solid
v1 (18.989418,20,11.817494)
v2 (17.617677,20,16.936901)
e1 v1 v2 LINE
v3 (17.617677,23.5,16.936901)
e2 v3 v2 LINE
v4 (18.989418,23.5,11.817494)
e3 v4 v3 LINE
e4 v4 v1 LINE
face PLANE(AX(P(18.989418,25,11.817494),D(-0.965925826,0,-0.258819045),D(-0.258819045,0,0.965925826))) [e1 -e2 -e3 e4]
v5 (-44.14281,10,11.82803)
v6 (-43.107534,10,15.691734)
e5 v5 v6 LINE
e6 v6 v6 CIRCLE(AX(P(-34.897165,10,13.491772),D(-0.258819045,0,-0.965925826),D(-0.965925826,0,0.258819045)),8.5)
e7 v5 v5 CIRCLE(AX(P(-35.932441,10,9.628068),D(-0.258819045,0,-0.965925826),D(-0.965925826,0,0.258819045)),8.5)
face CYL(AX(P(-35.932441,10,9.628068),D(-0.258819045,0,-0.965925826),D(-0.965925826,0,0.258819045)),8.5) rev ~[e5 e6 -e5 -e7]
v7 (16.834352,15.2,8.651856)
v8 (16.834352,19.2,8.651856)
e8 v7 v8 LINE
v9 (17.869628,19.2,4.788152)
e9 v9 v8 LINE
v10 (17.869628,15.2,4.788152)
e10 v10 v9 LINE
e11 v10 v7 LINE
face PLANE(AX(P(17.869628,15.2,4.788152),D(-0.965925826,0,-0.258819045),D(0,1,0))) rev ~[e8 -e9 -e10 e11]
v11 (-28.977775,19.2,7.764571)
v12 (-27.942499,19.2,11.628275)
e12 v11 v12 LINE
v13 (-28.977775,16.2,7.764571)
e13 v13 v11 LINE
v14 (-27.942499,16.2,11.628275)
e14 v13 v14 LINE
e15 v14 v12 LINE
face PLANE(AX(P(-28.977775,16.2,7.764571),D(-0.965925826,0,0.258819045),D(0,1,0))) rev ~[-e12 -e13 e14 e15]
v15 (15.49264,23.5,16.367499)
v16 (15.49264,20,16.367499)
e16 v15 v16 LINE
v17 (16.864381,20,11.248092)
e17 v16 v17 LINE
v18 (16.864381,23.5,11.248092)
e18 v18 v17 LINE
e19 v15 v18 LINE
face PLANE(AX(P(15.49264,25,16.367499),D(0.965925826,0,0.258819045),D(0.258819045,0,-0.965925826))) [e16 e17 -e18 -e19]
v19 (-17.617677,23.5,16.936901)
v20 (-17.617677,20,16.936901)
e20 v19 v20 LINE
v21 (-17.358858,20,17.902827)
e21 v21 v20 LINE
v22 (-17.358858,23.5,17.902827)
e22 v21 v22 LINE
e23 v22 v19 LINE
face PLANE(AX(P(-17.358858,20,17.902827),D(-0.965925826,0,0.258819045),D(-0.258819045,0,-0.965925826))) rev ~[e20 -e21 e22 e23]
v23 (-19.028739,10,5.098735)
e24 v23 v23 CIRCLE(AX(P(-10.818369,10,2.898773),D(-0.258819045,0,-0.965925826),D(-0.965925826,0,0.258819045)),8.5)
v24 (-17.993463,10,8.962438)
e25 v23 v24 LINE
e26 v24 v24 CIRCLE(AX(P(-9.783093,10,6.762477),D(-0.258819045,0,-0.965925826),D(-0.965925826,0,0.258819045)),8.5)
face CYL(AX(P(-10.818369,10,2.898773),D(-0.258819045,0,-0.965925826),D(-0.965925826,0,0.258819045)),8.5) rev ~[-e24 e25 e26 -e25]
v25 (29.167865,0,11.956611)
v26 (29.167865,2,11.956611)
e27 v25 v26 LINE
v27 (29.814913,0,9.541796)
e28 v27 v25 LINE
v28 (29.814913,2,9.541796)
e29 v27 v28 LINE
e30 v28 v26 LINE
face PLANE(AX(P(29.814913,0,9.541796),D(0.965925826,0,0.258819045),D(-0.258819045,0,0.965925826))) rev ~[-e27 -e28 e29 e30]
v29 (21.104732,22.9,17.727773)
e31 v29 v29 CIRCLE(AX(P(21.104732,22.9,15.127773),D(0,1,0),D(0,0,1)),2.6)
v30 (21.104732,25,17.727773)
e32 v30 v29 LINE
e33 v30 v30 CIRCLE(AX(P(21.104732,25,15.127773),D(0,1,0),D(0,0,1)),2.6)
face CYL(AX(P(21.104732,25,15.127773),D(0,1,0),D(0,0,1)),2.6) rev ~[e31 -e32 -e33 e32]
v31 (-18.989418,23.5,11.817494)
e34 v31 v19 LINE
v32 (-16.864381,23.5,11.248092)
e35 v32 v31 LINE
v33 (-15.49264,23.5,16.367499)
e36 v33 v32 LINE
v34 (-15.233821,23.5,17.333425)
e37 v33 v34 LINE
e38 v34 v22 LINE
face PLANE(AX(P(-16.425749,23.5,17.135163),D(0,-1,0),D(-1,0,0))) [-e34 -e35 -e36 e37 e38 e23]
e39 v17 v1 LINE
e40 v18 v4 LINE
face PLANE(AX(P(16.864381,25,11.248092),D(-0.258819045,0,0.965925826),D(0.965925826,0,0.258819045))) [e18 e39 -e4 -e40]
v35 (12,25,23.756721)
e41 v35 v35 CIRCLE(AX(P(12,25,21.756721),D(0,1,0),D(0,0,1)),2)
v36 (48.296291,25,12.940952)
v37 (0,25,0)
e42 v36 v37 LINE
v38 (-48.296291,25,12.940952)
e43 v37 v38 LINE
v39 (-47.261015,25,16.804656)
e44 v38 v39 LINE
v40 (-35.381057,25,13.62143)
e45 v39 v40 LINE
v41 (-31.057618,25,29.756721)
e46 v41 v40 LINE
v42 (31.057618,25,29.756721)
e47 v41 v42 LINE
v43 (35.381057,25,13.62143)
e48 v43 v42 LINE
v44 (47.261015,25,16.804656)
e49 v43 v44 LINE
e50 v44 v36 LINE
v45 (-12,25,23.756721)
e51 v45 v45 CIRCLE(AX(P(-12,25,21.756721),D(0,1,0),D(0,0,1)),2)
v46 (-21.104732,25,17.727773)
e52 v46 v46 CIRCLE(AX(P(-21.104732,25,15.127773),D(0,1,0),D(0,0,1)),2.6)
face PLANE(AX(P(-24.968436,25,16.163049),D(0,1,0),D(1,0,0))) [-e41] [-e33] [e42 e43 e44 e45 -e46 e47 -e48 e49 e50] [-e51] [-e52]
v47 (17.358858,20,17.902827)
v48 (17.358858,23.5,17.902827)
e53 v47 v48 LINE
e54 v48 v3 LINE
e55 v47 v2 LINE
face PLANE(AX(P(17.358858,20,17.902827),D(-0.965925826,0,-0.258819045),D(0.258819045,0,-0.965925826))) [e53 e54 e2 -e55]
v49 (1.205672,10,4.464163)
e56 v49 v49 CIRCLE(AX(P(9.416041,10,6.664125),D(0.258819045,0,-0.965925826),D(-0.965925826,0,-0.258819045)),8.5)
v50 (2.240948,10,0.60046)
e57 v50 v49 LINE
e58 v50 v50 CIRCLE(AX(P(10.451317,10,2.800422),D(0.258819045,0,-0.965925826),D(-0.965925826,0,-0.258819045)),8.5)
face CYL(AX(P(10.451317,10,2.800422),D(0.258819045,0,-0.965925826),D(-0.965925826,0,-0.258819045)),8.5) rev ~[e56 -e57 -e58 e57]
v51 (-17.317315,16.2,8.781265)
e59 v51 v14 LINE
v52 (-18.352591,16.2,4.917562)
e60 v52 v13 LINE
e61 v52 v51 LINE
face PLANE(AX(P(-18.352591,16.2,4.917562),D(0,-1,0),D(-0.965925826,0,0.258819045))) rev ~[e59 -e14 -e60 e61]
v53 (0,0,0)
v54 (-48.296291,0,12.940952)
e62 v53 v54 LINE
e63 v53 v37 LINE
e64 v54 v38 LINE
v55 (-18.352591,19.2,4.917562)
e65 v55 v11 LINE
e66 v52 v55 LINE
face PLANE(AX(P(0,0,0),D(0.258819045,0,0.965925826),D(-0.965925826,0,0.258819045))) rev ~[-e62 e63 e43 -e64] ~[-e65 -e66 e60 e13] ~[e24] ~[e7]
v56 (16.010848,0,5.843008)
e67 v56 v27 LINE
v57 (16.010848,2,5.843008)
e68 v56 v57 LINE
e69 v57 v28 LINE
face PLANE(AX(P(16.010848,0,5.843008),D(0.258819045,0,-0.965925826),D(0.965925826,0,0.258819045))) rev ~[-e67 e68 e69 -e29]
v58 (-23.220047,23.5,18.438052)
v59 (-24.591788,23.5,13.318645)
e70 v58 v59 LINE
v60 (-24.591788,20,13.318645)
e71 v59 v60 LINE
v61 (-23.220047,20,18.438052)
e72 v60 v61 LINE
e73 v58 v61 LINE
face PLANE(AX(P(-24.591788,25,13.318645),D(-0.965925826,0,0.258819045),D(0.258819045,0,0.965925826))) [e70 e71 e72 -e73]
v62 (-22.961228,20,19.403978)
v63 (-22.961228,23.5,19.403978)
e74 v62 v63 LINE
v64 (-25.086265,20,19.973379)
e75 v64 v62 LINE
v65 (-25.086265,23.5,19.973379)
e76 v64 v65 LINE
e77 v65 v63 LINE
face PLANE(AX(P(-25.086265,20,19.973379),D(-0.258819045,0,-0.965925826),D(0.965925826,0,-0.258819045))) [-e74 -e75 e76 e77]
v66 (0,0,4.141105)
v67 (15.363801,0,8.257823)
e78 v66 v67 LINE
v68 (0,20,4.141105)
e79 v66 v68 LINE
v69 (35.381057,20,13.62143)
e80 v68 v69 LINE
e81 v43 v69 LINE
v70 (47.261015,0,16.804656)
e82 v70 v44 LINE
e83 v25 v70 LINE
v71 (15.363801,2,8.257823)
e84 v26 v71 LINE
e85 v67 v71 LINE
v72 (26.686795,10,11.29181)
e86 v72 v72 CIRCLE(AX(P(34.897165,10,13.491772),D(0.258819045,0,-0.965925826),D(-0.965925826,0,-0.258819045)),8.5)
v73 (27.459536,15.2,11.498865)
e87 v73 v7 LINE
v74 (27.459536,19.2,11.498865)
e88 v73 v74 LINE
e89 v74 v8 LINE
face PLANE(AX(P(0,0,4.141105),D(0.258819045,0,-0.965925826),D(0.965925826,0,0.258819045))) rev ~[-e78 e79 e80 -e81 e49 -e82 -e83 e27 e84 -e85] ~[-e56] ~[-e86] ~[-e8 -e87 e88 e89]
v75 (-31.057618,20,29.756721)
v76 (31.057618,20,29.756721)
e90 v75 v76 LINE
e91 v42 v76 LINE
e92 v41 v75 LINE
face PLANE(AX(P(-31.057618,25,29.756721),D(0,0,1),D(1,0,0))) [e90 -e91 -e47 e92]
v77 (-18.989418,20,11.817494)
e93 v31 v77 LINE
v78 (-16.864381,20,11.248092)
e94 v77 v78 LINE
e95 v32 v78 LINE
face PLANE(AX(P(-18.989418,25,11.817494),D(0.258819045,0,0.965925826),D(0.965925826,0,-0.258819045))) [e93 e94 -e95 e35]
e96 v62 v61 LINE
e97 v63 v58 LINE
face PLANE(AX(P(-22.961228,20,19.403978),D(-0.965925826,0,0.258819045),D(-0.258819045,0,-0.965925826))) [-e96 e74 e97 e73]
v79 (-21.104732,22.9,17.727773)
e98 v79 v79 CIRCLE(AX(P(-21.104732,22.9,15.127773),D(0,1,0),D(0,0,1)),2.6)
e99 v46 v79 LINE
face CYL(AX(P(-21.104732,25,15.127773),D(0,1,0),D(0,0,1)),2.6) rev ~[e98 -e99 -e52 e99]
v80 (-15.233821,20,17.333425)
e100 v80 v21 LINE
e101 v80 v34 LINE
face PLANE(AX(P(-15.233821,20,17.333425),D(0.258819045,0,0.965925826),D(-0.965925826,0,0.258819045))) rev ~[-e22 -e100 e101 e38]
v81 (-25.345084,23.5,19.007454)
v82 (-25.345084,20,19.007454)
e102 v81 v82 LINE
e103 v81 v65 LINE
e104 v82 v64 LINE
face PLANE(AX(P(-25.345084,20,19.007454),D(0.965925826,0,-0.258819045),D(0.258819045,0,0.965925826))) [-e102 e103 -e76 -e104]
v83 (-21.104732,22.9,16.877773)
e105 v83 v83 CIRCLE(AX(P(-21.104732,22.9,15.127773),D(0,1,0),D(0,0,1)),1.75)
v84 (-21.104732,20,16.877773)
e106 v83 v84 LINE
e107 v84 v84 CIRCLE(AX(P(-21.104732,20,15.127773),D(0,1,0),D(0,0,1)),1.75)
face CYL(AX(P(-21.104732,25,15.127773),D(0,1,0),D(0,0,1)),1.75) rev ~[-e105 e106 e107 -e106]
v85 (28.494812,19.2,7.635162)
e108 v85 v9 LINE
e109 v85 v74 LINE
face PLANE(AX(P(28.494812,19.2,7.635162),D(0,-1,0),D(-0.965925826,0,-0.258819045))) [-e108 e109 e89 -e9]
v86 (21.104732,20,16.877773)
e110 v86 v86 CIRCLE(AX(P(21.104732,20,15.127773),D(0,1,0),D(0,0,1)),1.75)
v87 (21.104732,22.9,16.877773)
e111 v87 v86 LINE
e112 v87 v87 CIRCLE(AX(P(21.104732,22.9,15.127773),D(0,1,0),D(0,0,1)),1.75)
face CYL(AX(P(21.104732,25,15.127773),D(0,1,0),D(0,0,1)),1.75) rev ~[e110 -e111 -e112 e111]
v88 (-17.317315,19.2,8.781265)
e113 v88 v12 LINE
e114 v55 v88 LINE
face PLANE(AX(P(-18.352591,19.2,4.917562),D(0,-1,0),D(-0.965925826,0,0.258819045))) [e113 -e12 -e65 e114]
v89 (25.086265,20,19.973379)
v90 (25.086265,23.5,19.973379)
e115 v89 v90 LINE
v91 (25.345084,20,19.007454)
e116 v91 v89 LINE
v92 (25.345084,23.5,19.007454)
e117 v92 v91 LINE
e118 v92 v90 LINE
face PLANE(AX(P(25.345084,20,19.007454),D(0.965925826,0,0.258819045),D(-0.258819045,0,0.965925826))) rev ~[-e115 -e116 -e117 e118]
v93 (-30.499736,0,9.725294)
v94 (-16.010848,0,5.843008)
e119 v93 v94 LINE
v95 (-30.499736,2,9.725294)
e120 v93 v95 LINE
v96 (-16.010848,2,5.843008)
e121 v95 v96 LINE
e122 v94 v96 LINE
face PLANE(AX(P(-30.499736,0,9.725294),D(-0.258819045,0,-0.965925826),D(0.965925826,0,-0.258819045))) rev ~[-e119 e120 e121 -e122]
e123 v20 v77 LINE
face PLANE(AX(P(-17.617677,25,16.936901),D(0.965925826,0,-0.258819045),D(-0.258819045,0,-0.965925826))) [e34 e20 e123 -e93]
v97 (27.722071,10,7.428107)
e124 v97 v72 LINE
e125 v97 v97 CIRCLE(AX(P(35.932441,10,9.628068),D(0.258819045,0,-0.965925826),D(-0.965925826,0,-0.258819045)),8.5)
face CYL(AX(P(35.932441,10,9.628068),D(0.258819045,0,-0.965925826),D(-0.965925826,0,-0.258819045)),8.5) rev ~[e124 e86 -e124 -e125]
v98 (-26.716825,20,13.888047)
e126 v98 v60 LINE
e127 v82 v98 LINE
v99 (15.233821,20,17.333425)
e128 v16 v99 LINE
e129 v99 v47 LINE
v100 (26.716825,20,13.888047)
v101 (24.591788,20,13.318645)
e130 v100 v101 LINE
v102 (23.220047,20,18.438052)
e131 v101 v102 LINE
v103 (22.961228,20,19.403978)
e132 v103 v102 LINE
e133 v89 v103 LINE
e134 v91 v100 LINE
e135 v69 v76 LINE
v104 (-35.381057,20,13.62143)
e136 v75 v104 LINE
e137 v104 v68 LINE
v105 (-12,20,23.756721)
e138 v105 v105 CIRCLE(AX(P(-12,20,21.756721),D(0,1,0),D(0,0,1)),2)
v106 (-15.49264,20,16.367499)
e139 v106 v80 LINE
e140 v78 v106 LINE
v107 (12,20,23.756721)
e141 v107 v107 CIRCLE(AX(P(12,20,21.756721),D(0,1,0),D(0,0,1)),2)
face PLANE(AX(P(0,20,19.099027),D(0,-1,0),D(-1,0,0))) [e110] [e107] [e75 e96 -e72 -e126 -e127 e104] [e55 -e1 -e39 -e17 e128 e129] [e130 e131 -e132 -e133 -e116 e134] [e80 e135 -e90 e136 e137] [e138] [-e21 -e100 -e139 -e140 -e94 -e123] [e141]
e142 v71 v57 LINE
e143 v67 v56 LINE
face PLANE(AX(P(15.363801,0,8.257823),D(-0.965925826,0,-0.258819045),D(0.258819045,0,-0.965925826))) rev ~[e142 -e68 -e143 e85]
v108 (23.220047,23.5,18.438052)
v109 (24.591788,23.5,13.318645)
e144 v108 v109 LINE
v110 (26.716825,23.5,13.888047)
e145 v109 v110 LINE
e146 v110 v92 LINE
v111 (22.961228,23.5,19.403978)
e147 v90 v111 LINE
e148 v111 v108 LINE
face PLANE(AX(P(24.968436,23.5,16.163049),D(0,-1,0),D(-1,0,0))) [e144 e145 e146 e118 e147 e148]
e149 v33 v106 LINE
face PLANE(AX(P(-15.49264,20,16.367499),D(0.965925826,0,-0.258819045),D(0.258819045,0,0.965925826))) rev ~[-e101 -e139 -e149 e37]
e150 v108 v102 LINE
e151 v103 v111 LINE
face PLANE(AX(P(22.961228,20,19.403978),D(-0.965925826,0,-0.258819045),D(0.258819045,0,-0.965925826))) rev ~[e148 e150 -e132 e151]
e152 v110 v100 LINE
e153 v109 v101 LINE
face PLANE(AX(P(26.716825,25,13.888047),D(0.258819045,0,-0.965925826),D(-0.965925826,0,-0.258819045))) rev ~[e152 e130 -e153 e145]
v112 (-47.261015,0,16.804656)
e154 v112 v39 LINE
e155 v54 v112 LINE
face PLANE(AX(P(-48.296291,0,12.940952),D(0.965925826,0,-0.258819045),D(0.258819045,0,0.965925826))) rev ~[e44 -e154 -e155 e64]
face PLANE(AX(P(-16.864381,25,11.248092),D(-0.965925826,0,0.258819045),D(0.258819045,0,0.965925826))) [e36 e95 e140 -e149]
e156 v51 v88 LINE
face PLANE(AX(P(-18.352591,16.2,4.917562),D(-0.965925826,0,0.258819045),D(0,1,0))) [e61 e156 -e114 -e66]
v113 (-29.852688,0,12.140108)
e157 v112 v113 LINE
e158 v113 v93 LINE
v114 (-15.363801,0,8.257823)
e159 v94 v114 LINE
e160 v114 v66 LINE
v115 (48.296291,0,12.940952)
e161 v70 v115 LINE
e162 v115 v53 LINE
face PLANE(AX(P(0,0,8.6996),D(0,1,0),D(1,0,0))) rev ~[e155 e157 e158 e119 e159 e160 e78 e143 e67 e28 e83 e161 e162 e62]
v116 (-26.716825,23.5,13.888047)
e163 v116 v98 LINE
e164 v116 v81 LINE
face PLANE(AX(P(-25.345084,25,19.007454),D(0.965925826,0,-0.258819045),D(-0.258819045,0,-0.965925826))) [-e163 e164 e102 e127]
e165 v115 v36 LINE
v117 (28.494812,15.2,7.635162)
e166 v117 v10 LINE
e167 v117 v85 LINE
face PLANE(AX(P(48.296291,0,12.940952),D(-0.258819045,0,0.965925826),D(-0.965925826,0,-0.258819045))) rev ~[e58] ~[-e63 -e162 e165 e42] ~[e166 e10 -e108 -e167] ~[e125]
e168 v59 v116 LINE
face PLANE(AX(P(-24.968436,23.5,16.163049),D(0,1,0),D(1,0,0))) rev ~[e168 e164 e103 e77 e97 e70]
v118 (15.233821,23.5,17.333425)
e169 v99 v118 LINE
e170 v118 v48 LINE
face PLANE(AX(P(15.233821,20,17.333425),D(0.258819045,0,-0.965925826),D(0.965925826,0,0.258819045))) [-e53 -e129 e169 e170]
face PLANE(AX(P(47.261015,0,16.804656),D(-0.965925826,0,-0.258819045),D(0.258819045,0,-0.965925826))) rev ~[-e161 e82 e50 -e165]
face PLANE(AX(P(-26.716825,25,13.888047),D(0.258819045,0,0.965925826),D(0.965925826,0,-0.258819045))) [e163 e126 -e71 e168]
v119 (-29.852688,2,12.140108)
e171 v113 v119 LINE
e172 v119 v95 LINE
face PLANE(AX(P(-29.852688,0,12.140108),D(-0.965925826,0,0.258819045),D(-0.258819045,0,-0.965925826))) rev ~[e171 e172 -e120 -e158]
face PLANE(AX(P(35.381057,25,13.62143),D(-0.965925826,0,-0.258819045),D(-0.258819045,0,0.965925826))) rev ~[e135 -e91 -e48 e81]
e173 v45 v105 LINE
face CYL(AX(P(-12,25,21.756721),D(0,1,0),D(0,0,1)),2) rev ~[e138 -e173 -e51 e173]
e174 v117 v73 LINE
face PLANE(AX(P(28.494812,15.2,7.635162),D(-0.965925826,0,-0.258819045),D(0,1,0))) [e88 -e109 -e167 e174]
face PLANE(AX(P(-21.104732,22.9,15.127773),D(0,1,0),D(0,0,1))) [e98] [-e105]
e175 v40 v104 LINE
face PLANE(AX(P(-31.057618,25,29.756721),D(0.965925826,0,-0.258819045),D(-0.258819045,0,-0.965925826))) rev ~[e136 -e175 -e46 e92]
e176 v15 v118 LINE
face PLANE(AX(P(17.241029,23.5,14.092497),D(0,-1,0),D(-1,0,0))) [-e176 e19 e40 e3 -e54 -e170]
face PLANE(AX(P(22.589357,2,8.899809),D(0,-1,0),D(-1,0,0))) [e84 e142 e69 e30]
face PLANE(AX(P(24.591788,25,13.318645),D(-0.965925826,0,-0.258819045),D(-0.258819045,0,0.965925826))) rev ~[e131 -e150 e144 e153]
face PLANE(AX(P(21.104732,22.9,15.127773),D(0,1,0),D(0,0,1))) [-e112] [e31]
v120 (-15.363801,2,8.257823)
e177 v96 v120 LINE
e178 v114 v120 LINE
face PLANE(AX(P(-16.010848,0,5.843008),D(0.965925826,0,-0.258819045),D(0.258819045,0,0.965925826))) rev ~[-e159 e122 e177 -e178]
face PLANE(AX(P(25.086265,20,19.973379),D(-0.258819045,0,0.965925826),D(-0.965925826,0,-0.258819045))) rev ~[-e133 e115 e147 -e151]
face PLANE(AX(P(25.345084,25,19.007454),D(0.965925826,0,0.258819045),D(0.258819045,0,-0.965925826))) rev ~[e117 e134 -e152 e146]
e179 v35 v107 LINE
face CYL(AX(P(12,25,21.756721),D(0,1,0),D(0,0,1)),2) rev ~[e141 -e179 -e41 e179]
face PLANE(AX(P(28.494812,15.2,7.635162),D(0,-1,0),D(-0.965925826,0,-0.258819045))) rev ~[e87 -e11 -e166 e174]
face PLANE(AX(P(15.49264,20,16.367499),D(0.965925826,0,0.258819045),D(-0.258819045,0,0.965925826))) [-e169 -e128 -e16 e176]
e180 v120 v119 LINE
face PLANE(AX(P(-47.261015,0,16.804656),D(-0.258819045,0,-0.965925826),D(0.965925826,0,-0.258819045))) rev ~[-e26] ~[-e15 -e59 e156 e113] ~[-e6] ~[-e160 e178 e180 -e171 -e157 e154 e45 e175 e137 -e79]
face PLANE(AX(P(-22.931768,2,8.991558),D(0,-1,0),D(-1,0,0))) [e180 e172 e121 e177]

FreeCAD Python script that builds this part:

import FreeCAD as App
import Part
import Sketcher
Q = App.Units.Quantity

doc = App.newDocument("Part")
params = doc.addObject("Spreadsheet::Sheet", "Params")
for row, (alias, value) in enumerate([
    ("sketch1_length", "50 mm"),
    ("sketch1_length2", "4 mm"),
    ("pad1_length", "25 mm"),
    ("sketch2_diameter", "4 mm"),
    ("pad2_length", "5 mm"),
    ("sketch3_diameter", "3.5 mm"),
    ("sketch3_length", "5.3 mm"),
    ("sketch3_length2", "2.2 mm"),
    ("pocket1_length", "5 mm"),
    ("sketch4_diameter", "5.2 mm"),
    ("pocket2_length", "2.1 mm"),
    ("sketch5_length", "5.3 mm"),
    ("sketch5_length2", "2.2 mm"),
    ("pad3_length", "1.5 mm"),
    ("sketch6_diameter", "17 mm"),
    ("sketch6_width", "11 mm"),
    ("sketch6_height", "3 mm"),
    ("sketch7_diameter", "17 mm"),
    ("sketch7_width", "11 mm"),
    ("sketch7_height", "4 mm"),
    ("sketch8_length", "15 mm"),
    ("sketch8_length2", "2.5 mm"),
    ("pocket5_length", "2 mm"),
    ("sketch9_length", "1 mm"),
    ("sketch9_length2", "2.2 mm"),
    ("pocket6_length", "3.5 mm"),
], start=1):
    params.set(f"A{row}", alias)
    params.set(f"B{row}", "=" + value)
    params.setAlias(f"B{row}", alias)

body = doc.addObject("PartDesign::Body", "Body")

# Sketch on XZ plane
sketch1 = body.newObject("Sketcher::SketchObject", "Sketch")
sketch1.AttachmentSupport = (doc.getObject("XZ_Plane"), [""])
sketch1.MapMode = "FlatFace"
sketch1.addGeometry([
    Part.LineSegment(App.Vector(0, 0, 0), App.Vector(-48.3, 12.9, 0)),  # 0
    Part.LineSegment(App.Vector(-48.3, 12.9, 0), App.Vector(-47.3, 16.8, 0)),  # 1
    Part.LineSegment(App.Vector(-47.3, 16.8, 0), App.Vector(0, 4.1, 0)),  # 2
    Part.LineSegment(App.Vector(0, 4.1, 0), App.Vector(47.3, 16.8, 0)),  # 3
    Part.LineSegment(App.Vector(47.3, 16.8, 0), App.Vector(48.3, 12.9, 0)),  # 4
    Part.LineSegment(App.Vector(48.3, 12.9, 0), App.Vector(0, 0, 0)),  # 5
], False)
sketch1.addConstraint([
    Sketcher.Constraint("Coincident", 0, 2, 1, 1),
    Sketcher.Constraint("Coincident", 1, 2, 2, 1),
    Sketcher.Constraint("Coincident", 2, 2, 3, 1),
    Sketcher.Constraint("Coincident", 3, 2, 4, 1),
    Sketcher.Constraint("Coincident", 4, 2, 5, 1),
    Sketcher.Constraint("Coincident", 5, 2, 0, 1),
    Sketcher.Constraint("Coincident", 5, 2, -1, 1),
    Sketcher.Constraint("Symmetric", 1, 2, 3, 2, -2),
    Sketcher.Constraint("Symmetric", 0, 2, 4, 2, -2),
    Sketcher.Constraint("PointOnObject", 2, 2, -2),
    Sketcher.Constraint("Perpendicular", 0, 1),
    Sketcher.Constraint("Perpendicular", 1, 2),
    Sketcher.Constraint("Angle", 0, Q("165 deg")),
    Sketcher.Constraint("Distance", 0, 50.0),
    Sketcher.Constraint("Distance", 1, 4.0),
])
sketch1.setExpression("Constraints[13]", "Params.sketch1_length")
sketch1.setExpression("Constraints[14]", "Params.sketch1_length2")
pad1 = body.newObject("PartDesign::Pad", "Pad")
pad1.Profile = sketch1
pad1.setExpression("Length", "Params.pad1_length")
pad1.Reversed = True

# Sketch on XZ plane
sketch2 = body.newObject("Sketcher::SketchObject", "Sketch001")
sketch2.AttachmentSupport = (doc.getObject("XZ_Plane"), [""])
sketch2.MapMode = "FlatFace"
sketch2.AttachmentOffset = App.Placement(App.Vector(0, 0, -25), App.Rotation())
sketch2.addGeometry([
    Part.LineSegment(App.Vector(-31.1, 29.8, 0), App.Vector(31.1, 29.8, 0)),  # 0
    Part.LineSegment(App.Vector(31.1, 29.8, 0), App.Vector(35.4, 13.6, 0)),  # 1
    Part.LineSegment(App.Vector(35.4, 13.6, 0), App.Vector(0, 4.1, 0)),  # 2
    Part.LineSegment(App.Vector(0, 4.1, 0), App.Vector(-35.4, 13.6, 0)),  # 3
    Part.LineSegment(App.Vector(-35.4, 13.6, 0), App.Vector(-31.1, 29.8, 0)),  # 4
    Part.Circle(App.Vector(12, 21.8, 0), App.Vector(0, 0, 1), 2),  # 5
    Part.Circle(App.Vector(-12, 21.8, 0), App.Vector(0, 0, 1), 2),  # 6
], False)
sketch2.addConstraint([
    Sketcher.Constraint("Coincident", 0, 2, 1, 1),
    Sketcher.Constraint("Coincident", 1, 2, 2, 1),
    Sketcher.Constraint("Coincident", 2, 2, 3, 1),
    Sketcher.Constraint("Coincident", 3, 2, 4, 1),
    Sketcher.Constraint("Coincident", 4, 2, 0, 1),
    Sketcher.Constraint("Horizontal", 0),
    Sketcher.Constraint("Equal", 5, 6),
    Sketcher.Constraint("Symmetric", 5, 3, 6, 3, -2),
    Sketcher.Constraint("Symmetric", 1, 2, 3, 2, -2),
    Sketcher.Constraint("PointOnObject", 2, 2, -2),
    Sketcher.Constraint("Perpendicular", 1, 2),
    Sketcher.Constraint("Perpendicular", 3, 4),
    Sketcher.Constraint("Diameter", 5, 4.0),
    Sketcher.Constraint("Angle", 1, Q("-75 deg")),
    Sketcher.Constraint("DistanceX", -1, 1, 5, 3, 12.0),
    Sketcher.Constraint("DistanceY", 5, 3, 0, 2, 8.0),
    Sketcher.Constraint("DistanceX", 0, 1, 0, 2, 62.115237),
    Sketcher.Constraint("DistanceY", -1, 1, 5, 3, 21.756721),
    Sketcher.Constraint("DistanceY", -1, 1, 1, 2, 13.62143),
])
sketch2.setExpression("Constraints[12]", "Params.sketch2_diameter")
pad2 = body.newObject("PartDesign::Pad", "Pad001")
pad2.Profile = sketch2
pad2.setExpression("Length", "Params.pad2_length")

# Sketch on XZ plane
sketch3 = body.newObject("Sketcher::SketchObject", "Sketch002")
sketch3.AttachmentSupport = (doc.getObject("XZ_Plane"), [""])
sketch3.MapMode = "FlatFace"
sketch3.AttachmentOffset = App.Placement(App.Vector(0, 0, -25), App.Rotation())
sketch3.addGeometry([
    Part.LineSegment(App.Vector(24.6, 13.3, 0), App.Vector(23.2, 18.4, 0)),  # 0
    Part.LineSegment(App.Vector(23.2, 18.4, 0), App.Vector(25.3, 19, 0)),  # 1
    Part.LineSegment(App.Vector(25.3, 19, 0), App.Vector(26.7, 13.9, 0)),  # 2
    Part.LineSegment(App.Vector(26.7, 13.9, 0), App.Vector(24.6, 13.3, 0)),  # 3
    Part.Circle(App.Vector(21.1, 15.1, 0), App.Vector(0, 0, 1), 1.8),  # 4
    Part.LineSegment(App.Vector(17.6, 16.9, 0), App.Vector(19, 11.8, 0)),  # 5
    Part.LineSegment(App.Vector(19, 11.8, 0), App.Vector(16.9, 11.2, 0)),  # 6
    Part.LineSegment(App.Vector(16.9, 11.2, 0), App.Vector(15.5, 16.4, 0)),  # 7
    Part.LineSegment(App.Vector(15.5, 16.4, 0), App.Vector(17.6, 16.9, 0)),  # 8
    Part.LineSegment(App.Vector(-17.6, 16.9, 0), App.Vector(-15.5, 16.4, 0)),  # 9
    Part.LineSegment(App.Vector(-15.5, 16.4, 0), App.Vector(-16.9, 11.2, 0)),  # 10
    Part.LineSegment(App.Vector(-16.9, 11.2, 0), App.Vector(-19, 11.8, 0)),  # 11
    Part.LineSegment(App.Vector(-19, 11.8, 0), App.Vector(-17.6, 16.9, 0)),  # 12
    Part.Circle(App.Vector(-21.1, 15.1, 0), App.Vector(0, 0, 1), 1.8),  # 13
    Part.LineSegment(App.Vector(-26.7, 13.9, 0), App.Vector(-25.3, 19, 0)),  # 14
    Part.LineSegment(App.Vector(-25.3, 19, 0), App.Vector(-23.2, 18.4, 0)),  # 15
    Part.LineSegment(App.Vector(-23.2, 18.4, 0), App.Vector(-24.6, 13.3, 0)),  # 16
    Part.LineSegment(App.Vector(-24.6, 13.3, 0), App.Vector(-26.7, 13.9, 0)),  # 17
], False)
sketch3.addConstraint([
    Sketcher.Constraint("Coincident", 0, 2, 1, 1),
    Sketcher.Constraint("Coincident", 1, 2, 2, 1),
    Sketcher.Constraint("Coincident", 2, 2, 3, 1),
    Sketcher.Constraint("Coincident", 3, 2, 0, 1),
    Sketcher.Constraint("Coincident", 5, 2, 6, 1),
    Sketcher.Constraint("Coincident", 6, 2, 7, 1),
    Sketcher.Constraint("Coincident", 7, 2, 8, 1),
    Sketcher.Constraint("Coincident", 8, 2, 5, 1),
    Sketcher.Constraint("Coincident", 9, 2, 10, 1),
    Sketcher.Constraint("Coincident", 10, 2, 11, 1),
    Sketcher.Constraint("Coincident", 11, 2, 12, 1),
    Sketcher.Constraint("Coincident", 12, 2, 9, 1),
    Sketcher.Constraint("Coincident", 14, 2, 15, 1),
    Sketcher.Constraint("Coincident", 15, 2, 16, 1),
    Sketcher.Constraint("Coincident", 16, 2, 17, 1),
    Sketcher.Constraint("Coincident", 17, 2, 14, 1),
    Sketcher.Constraint("Equal", 4, 13),
    Sketcher.Constraint("Symmetric", 4, 3, 13, 3, -2),
    Sketcher.Constraint("Symmetric", 7, 2, 9, 2, -2),
    Sketcher.Constraint("Symmetric", 6, 2, 10, 2, -2),
    Sketcher.Constraint("Symmetric", 5, 2, 11, 2, -2),
    Sketcher.Constraint("Symmetric", 8, 2, 12, 2, -2),
    Sketcher.Constraint("Symmetric", 1, 2, 14, 2, -2),
    Sketcher.Constraint("Symmetric", 0, 2, 15, 2, -2),
    Sketcher.Constraint("Symmetric", 3, 2, 16, 2, -2),
    Sketcher.Constraint("Symmetric", 2, 2, 17, 2, -2),
    Sketcher.Constraint("Perpendicular", 0, 1),
    Sketcher.Constraint("Perpendicular", 1, 2),
    Sketcher.Constraint("Perpendicular", 2, 3),
    Sketcher.Constraint("Perpendicular", 3, 5),
    Sketcher.Constraint("Perpendicular", 5, 6),
    Sketcher.Constraint("Perpendicular", 6, 7),
    Sketcher.Constraint("Perpendicular", 7, 8),
    Sketcher.Constraint("Equal", 2, 5),
    Sketcher.Constraint("Equal", 3, 6),
    Sketcher.Constraint("Diameter", 4, 3.5),
    Sketcher.Constraint("Angle", 0, Q("105 deg")),
    Sketcher.Constraint("Distance", 0, 5.3),
    Sketcher.Constraint("Distance", 1, 2.2),
    Sketcher.Constraint("DistanceY", -1, 1, 7, 2, 16.367499),
    Sketcher.Constraint("DistanceX", 11, 2, 6, 2, 35.853799),
    Sketcher.Constraint("DistanceY", -1, 1, 0, 2, 18.438052),
    Sketcher.Constraint("DistanceY", 4, 3, 0, 2, 3.310279),
    Sketcher.Constraint("DistanceX", 13, 3, 0, 2, 44.324779),
    Sketcher.Constraint("DistanceX", 4, 3, 1, 2, 4.240351),
])
sketch3.setExpression("Constraints[35]", "Params.sketch3_diameter")
sketch3.setExpression("Constraints[37]", "Params.sketch3_length")
sketch3.setExpression("Constraints[38]", "Params.sketch3_length2")
pocket1 = body.newObject("PartDesign::Pocket", "Pocket")
pocket1.Profile = sketch3
pocket1.setExpression("Length", "Params.pocket1_length")
pocket1.Reversed = True

# Sketch on XZ plane
sketch4 = body.newObject("Sketcher::SketchObject", "Sketch003")
sketch4.AttachmentSupport = (doc.getObject("XZ_Plane"), [""])
sketch4.MapMode = "FlatFace"
sketch4.AttachmentOffset = App.Placement(App.Vector(0, 0, -25), App.Rotation())
sketch4.addGeometry([
    Part.Circle(App.Vector(-21.1, 15.1, 0), App.Vector(0, 0, 1), 2.6),
    Part.Circle(App.Vector(21.1, 15.1, 0), App.Vector(0, 0, 1), 2.6),
], False)
sketch4.addConstraint([
    Sketcher.Constraint("Equal", 0, 1),
    Sketcher.Constraint("Symmetric", 0, 3, 1, 3, -2),
    Sketcher.Constraint("Diameter", 0, 5.2),
    Sketcher.Constraint("DistanceX", 0, 3, -1, 1, 21.104732),
    Sketcher.Constraint("DistanceY", -1, 1, 0, 3, 15.127773),
])
sketch4.setExpression("Constraints[2]", "Params.sketch4_diameter")
pocket2 = body.newObject("PartDesign::Pocket", "Pocket001")
pocket2.Profile = sketch4
pocket2.setExpression("Length", "Params.pocket2_length")
pocket2.Reversed = True

# Sketch on XZ plane
sketch5 = body.newObject("Sketcher::SketchObject", "Sketch004")
sketch5.AttachmentSupport = (doc.getObject("XZ_Plane"), [""])
sketch5.MapMode = "FlatFace"
sketch5.AttachmentOffset = App.Placement(App.Vector(0, 0, -25), App.Rotation())
sketch5.addGeometry([
    Part.LineSegment(App.Vector(-26.7, 13.9, 0), App.Vector(-25.3, 19, 0)),  # 0
    Part.LineSegment(App.Vector(-25.3, 19, 0), App.Vector(-23.2, 18.4, 0)),  # 1
    Part.LineSegment(App.Vector(-23.2, 18.4, 0), App.Vector(-24.6, 13.3, 0)),  # 2
    Part.LineSegment(App.Vector(-24.6, 13.3, 0), App.Vector(-26.7, 13.9, 0)),  # 3
    Part.LineSegment(App.Vector(-17.6, 16.9, 0), App.Vector(-15.5, 16.4, 0)),  # 4
    Part.LineSegment(App.Vector(-15.5, 16.4, 0), App.Vector(-16.9, 11.2, 0)),  # 5
    Part.LineSegment(App.Vector(-16.9, 11.2, 0), App.Vector(-19, 11.8, 0)),  # 6
    Part.LineSegment(App.Vector(-19, 11.8, 0), App.Vector(-17.6, 16.9, 0)),  # 7
    Part.LineSegment(App.Vector(17.6, 16.9, 0), App.Vector(19, 11.8, 0)),  # 8
    Part.LineSegment(App.Vector(19, 11.8, 0), App.Vector(16.9, 11.2, 0)),  # 9
    Part.LineSegment(App.Vector(16.9, 11.2, 0), App.Vector(15.5, 16.4, 0)),  # 10
    Part.LineSegment(App.Vector(15.5, 16.4, 0), App.Vector(17.6, 16.9, 0)),  # 11
    Part.LineSegment(App.Vector(26.7, 13.9, 0), App.Vector(24.6, 13.3, 0)),  # 12
    Part.LineSegment(App.Vector(24.6, 13.3, 0), App.Vector(23.2, 18.4, 0)),  # 13
    Part.LineSegment(App.Vector(23.2, 18.4, 0), App.Vector(25.3, 19, 0)),  # 14
    Part.LineSegment(App.Vector(25.3, 19, 0), App.Vector(26.7, 13.9, 0)),  # 15
], False)
sketch5.addConstraint([
    Sketcher.Constraint("Coincident", 0, 2, 1, 1),
    Sketcher.Constraint("Coincident", 1, 2, 2, 1),
    Sketcher.Constraint("Coincident", 2, 2, 3, 1),
    Sketcher.Constraint("Coincident", 3, 2, 0, 1),
    Sketcher.Constraint("Coincident", 4, 2, 5, 1),
    Sketcher.Constraint("Coincident", 5, 2, 6, 1),
    Sketcher.Constraint("Coincident", 6, 2, 7, 1),
    Sketcher.Constraint("Coincident", 7, 2, 4, 1),
    Sketcher.Constraint("Coincident", 8, 2, 9, 1),
    Sketcher.Constraint("Coincident", 9, 2, 10, 1),
    Sketcher.Constraint("Coincident", 10, 2, 11, 1),
    Sketcher.Constraint("Coincident", 11, 2, 8, 1),
    Sketcher.Constraint("Coincident", 12, 2, 13, 1),
    Sketcher.Constraint("Coincident", 13, 2, 14, 1),
    Sketcher.Constraint("Coincident", 14, 2, 15, 1),
    Sketcher.Constraint("Coincident", 15, 2, 12, 1),
    Sketcher.Constraint("Symmetric", 6, 2, 8, 2, -2),
    Sketcher.Constraint("Symmetric", 5, 2, 9, 2, -2),
    Sketcher.Constraint("Symmetric", 4, 2, 10, 2, -2),
    Sketcher.Constraint("Symmetric", 7, 2, 11, 2, -2),
    Sketcher.Constraint("Symmetric", 2, 2, 12, 2, -2),
    Sketcher.Constraint("Symmetric", 1, 2, 13, 2, -2),
    Sketcher.Constraint("Symmetric", 0, 2, 14, 2, -2),
    Sketcher.Constraint("Symmetric", 3, 2, 15, 2, -2),
    Sketcher.Constraint("Perpendicular", 0, 1),
    Sketcher.Constraint("Perpendicular", 1, 2),
    Sketcher.Constraint("Perpendicular", 2, 3),
    Sketcher.Constraint("Parallel", 3, 4),
    Sketcher.Constraint("Perpendicular", 4, 5),
    Sketcher.Constraint("Perpendicular", 5, 6),
    Sketcher.Constraint("Perpendicular", 6, 7),
    Sketcher.Constraint("Equal", 3, 4),
    Sketcher.Constraint("Equal", 2, 5),
    Sketcher.Constraint("Angle", 0, Q("75 deg")),
    Sketcher.Constraint("Distance", 0, 5.3),
    Sketcher.Constraint("Distance", 1, 2.2),
    Sketcher.Constraint("DistanceY", -1, 1, 4, 2, 16.367499),
    Sketcher.Constraint("DistanceX", 5, 2, 8, 2, 35.853799),
    Sketcher.Constraint("DistanceY", -1, 1, 1, 2, 18.438052),
    Sketcher.Constraint("DistanceX", 2, 2, 6, 2, 5.60237),
])
sketch5.setExpression("Constraints[34]", "Params.sketch5_length")
sketch5.setExpression("Constraints[35]", "Params.sketch5_length2")
pad3 = body.newObject("PartDesign::Pad", "Pad002")
pad3.Profile = sketch5
pad3.setExpression("Length", "Params.pad3_length")

# Sketch on an angled plane
sketch6 = body.newObject("Sketcher::SketchObject", "Sketch005")
sketch6.Placement = App.Placement(App.Vector(0, 0, 0), App.Rotation(App.Vector(-0.965925826, 0, 0.258819045), App.Vector(0, 0.999999999, 0), App.Vector(-0.258819045, 0, -0.965925826), "ZXY"))
sketch6.addGeometry([
    Part.Circle(App.Vector(37.2, 10, 0), App.Vector(0, 0, 1), 8.5),  # 0
    Part.Circle(App.Vector(11.2, 10, 0), App.Vector(0, 0, 1), 8.5),  # 1
    Part.LineSegment(App.Vector(19, 19.2, 0), App.Vector(19, 16.2, 0)),  # 2
    Part.LineSegment(App.Vector(19, 16.2, 0), App.Vector(30, 16.2, 0)),  # 3
    Part.LineSegment(App.Vector(30, 16.2, 0), App.Vector(30, 19.2, 0)),  # 4
    Part.LineSegment(App.Vector(30, 19.2, 0), App.Vector(19, 19.2, 0)),  # 5
], False)
sketch6.addConstraint([
    Sketcher.Constraint("Coincident", 2, 2, 3, 1),
    Sketcher.Constraint("Coincident", 3, 2, 4, 1),
    Sketcher.Constraint("Coincident", 4, 2, 5, 1),
    Sketcher.Constraint("Coincident", 5, 2, 2, 1),
    Sketcher.Constraint("Vertical", 2),
    Sketcher.Constraint("Horizontal", 3),
    Sketcher.Constraint("Vertical", 4),
    Sketcher.Constraint("Horizontal", 5),
    Sketcher.Constraint("Equal", 0, 1),
    Sketcher.Constraint("Horizontal", 0, 3, 1, 3),
    Sketcher.Constraint("Diameter", 0, 17.0),
    Sketcher.Constraint("DistanceX", 3, 1, 3, 2, 11.0),
    Sketcher.Constraint("DistanceY", 2, 2, 2, 1, 3.0),
    Sketcher.Constraint("DistanceY", -1, 1, 0, 3, 10.0),
    Sketcher.Constraint("DistanceX", -1, 1, 2, 2, 19.0),
    Sketcher.Constraint("DistanceX", 1, 3, 0, 3, 26.0),
    Sketcher.Constraint("DistanceX", -1, 1, 0, 3, 37.2),
    Sketcher.Constraint("DistanceY", -1, 1, 2, 2, 16.2),
])
sketch6.setExpression("Constraints[10]", "Params.sketch6_diameter")
sketch6.setExpression("Constraints[11]", "Params.sketch6_width")
sketch6.setExpression("Constraints[12]", "Params.sketch6_height")
pocket3 = body.newObject("PartDesign::Pocket", "Pocket002")
pocket3.Profile = sketch6
pocket3.Type = "ThroughAll"

# Sketch on an angled plane
sketch7 = body.newObject("Sketcher::SketchObject", "Sketch006")
sketch7.Placement = App.Placement(App.Vector(0, 0, 0), App.Rotation(App.Vector(-0.965925826, 0, -0.258819045), App.Vector(0, 0.999999999, 0), App.Vector(0.258819045, 0, -0.965925826), "ZXY"))
sketch7.addGeometry([
    Part.Circle(App.Vector(-10.8, 10, 0), App.Vector(0, 0, 1), 8.5),  # 0
    Part.Circle(App.Vector(-37.2, 10, 0), App.Vector(0, 0, 1), 8.5),  # 1
    Part.LineSegment(App.Vector(-29.5, 19.2, 0), App.Vector(-29.5, 15.2, 0)),  # 2
    Part.LineSegment(App.Vector(-29.5, 15.2, 0), App.Vector(-18.5, 15.2, 0)),  # 3
    Part.LineSegment(App.Vector(-18.5, 15.2, 0), App.Vector(-18.5, 19.2, 0)),  # 4
    Part.LineSegment(App.Vector(-18.5, 19.2, 0), App.Vector(-29.5, 19.2, 0)),  # 5
], False)
sketch7.addConstraint([
    Sketcher.Constraint("Coincident", 2, 2, 3, 1),
    Sketcher.Constraint("Coincident", 3, 2, 4, 1),
    Sketcher.Constraint("Coincident", 4, 2, 5, 1),
    Sketcher.Constraint("Coincident", 5, 2, 2, 1),
    Sketcher.Constraint("Vertical", 2),
    Sketcher.Constraint("Horizontal", 3),
    Sketcher.Constraint("Vertical", 4),
    Sketcher.Constraint("Horizontal", 5),
    Sketcher.Constraint("Equal", 0, 1),
    Sketcher.Constraint("Horizontal", 0, 3, 1, 3),
    Sketcher.Constraint("Diameter", 0, 17.0),
    Sketcher.Constraint("DistanceX", 3, 1, 3, 2, 11.0),
    Sketcher.Constraint("DistanceY", 2, 2, 2, 1, 4.0),
    Sketcher.Constraint("DistanceY", -1, 1, 0, 3, 10.0),
    Sketcher.Constraint("DistanceX", 1, 3, -1, 1, 37.2),
    Sketcher.Constraint("DistanceX", 2, 2, -1, 1, 29.5),
    Sketcher.Constraint("DistanceY", -1, 1, 2, 2, 15.2),
    Sketcher.Constraint("DistanceX", 0, 3, -1, 1, 10.82),
])
sketch7.setExpression("Constraints[10]", "Params.sketch7_diameter")
sketch7.setExpression("Constraints[11]", "Params.sketch7_width")
sketch7.setExpression("Constraints[12]", "Params.sketch7_height")
pocket4 = body.newObject("PartDesign::Pocket", "Pocket003")
pocket4.Profile = sketch7
pocket4.Type = "ThroughAll"

# Sketch on XZ plane
sketch8 = body.newObject("Sketcher::SketchObject", "Sketch007")
sketch8.AttachmentSupport = (doc.getObject("XZ_Plane"), [""])
sketch8.MapMode = "FlatFace"
sketch8.addGeometry([
    Part.LineSegment(App.Vector(29.2, 12, 0), App.Vector(15.4, 8.3, 0)),  # 0
    Part.LineSegment(App.Vector(15.4, 8.3, 0), App.Vector(16, 5.8, 0)),  # 1
    Part.LineSegment(App.Vector(16, 5.8, 0), App.Vector(29.8, 9.5, 0)),  # 2
    Part.LineSegment(App.Vector(29.8, 9.5, 0), App.Vector(29.2, 12, 0)),  # 3
    Part.LineSegment(App.Vector(-15.4, 8.3, 0), App.Vector(-29.9, 12.1, 0)),  # 4
    Part.LineSegment(App.Vector(-29.9, 12.1, 0), App.Vector(-30.5, 9.7, 0)),  # 5
    Part.LineSegment(App.Vector(-30.5, 9.7, 0), App.Vector(-16, 5.8, 0)),  # 6
    Part.LineSegment(App.Vector(-16, 5.8, 0), App.Vector(-15.4, 8.3, 0)),  # 7
], False)
sketch8.addConstraint([
    Sketcher.Constraint("Coincident", 0, 2, 1, 1),
    Sketcher.Constraint("Coincident", 1, 2, 2, 1),
    Sketcher.Constraint("Coincident", 2, 2, 3, 1),
    Sketcher.Constraint("Coincident", 3, 2, 0, 1),
    Sketcher.Constraint("Coincident", 4, 2, 5, 1),
    Sketcher.Constraint("Coincident", 5, 2, 6, 1),
    Sketcher.Constraint("Coincident", 6, 2, 7, 1),
    Sketcher.Constraint("Coincident", 7, 2, 4, 1),
    Sketcher.Constraint("Symmetric", 1, 2, 6, 2, -2),
    Sketcher.Constraint("Symmetric", 0, 2, 7, 2, -2),
    Sketcher.Constraint("Perpendicular", 0, 1),
    Sketcher.Constraint("Perpendicular", 1, 2),
    Sketcher.Constraint("Perpendicular", 2, 3),
    Sketcher.Constraint("Perpendicular", 4, 5),
    Sketcher.Constraint("Perpendicular", 5, 6),
    Sketcher.Constraint("Perpendicular", 6, 7),
    Sketcher.Constraint("Angle", 0, Q("-165 deg")),
    Sketcher.Constraint("Distance", 4, 15.0),
    Sketcher.Constraint("Distance", 1, 2.5),
    Sketcher.Constraint("DistanceX", -1, 1, 0, 2, 15.363801),
    Sketcher.Constraint("DistanceX", 4, 2, 2, 2, 59.667601),
    Sketcher.Constraint("DistanceY", -1, 1, 1, 2, 5.843008),
])
sketch8.setExpression("Constraints[17]", "Params.sketch8_length")
sketch8.setExpression("Constraints[18]", "Params.sketch8_length2")
pocket5 = body.newObject("PartDesign::Pocket", "Pocket004")
pocket5.Profile = sketch8
pocket5.setExpression("Length", "Params.pocket5_length")

# Sketch on XZ plane
sketch9 = body.newObject("Sketcher::SketchObject", "Sketch008")
sketch9.AttachmentSupport = (doc.getObject("XZ_Plane"), [""])
sketch9.MapMode = "FlatFace"
sketch9.AttachmentOffset = App.Placement(App.Vector(0, 0, -20), App.Rotation())
sketch9.addGeometry([
    Part.LineSegment(App.Vector(25.1, 20, 0), App.Vector(23, 19.4, 0)),  # 0
    Part.LineSegment(App.Vector(23, 19.4, 0), App.Vector(23.2, 18.4, 0)),  # 1
    Part.LineSegment(App.Vector(23.2, 18.4, 0), App.Vector(25.3, 19, 0)),  # 2
    Part.LineSegment(App.Vector(25.3, 19, 0), App.Vector(25.1, 20, 0)),  # 3
    Part.LineSegment(App.Vector(15.2, 17.3, 0), App.Vector(15.5, 16.4, 0)),  # 4
    Part.LineSegment(App.Vector(15.5, 16.4, 0), App.Vector(17.6, 16.9, 0)),  # 5
    Part.LineSegment(App.Vector(17.6, 16.9, 0), App.Vector(17.4, 17.9, 0)),  # 6
    Part.LineSegment(App.Vector(17.4, 17.9, 0), App.Vector(15.2, 17.3, 0)),  # 7
    Part.LineSegment(App.Vector(-15.2, 17.3, 0), App.Vector(-17.4, 17.9, 0)),  # 8
    Part.LineSegment(App.Vector(-17.4, 17.9, 0), App.Vector(-17.6, 16.9, 0)),  # 9
    Part.LineSegment(App.Vector(-17.6, 16.9, 0), App.Vector(-15.5, 16.4, 0)),  # 10
    Part.LineSegment(App.Vector(-15.5, 16.4, 0), App.Vector(-15.2, 17.3, 0)),  # 11
    Part.LineSegment(App.Vector(-25.1, 20, 0), App.Vector(-25.3, 19, 0)),  # 12
    Part.LineSegment(App.Vector(-25.3, 19, 0), App.Vector(-23.2, 18.4, 0)),  # 13
    Part.LineSegment(App.Vector(-23.2, 18.4, 0), App.Vector(-23, 19.4, 0)),  # 14
    Part.LineSegment(App.Vector(-23, 19.4, 0), App.Vector(-25.1, 20, 0)),  # 15
], False)
sketch9.addConstraint([
    Sketcher.Constraint("Coincident", 0, 2, 1, 1),
    Sketcher.Constraint("Coincident", 1, 2, 2, 1),
    Sketcher.Constraint("Coincident", 2, 2, 3, 1),
    Sketcher.Constraint("Coincident", 3, 2, 0, 1),
    Sketcher.Constraint("Coincident", 4, 2, 5, 1),
    Sketcher.Constraint("Coincident", 5, 2, 6, 1),
    Sketcher.Constraint("Coincident", 6, 2, 7, 1),
    Sketcher.Constraint("Coincident", 7, 2, 4, 1),
    Sketcher.Constraint("Coincident", 8, 2, 9, 1),
    Sketcher.Constraint("Coincident", 9, 2, 10, 1),
    Sketcher.Constraint("Coincident", 10, 2, 11, 1),
    Sketcher.Constraint("Coincident", 11, 2, 8, 1),
    Sketcher.Constraint("Coincident", 12, 2, 13, 1),
    Sketcher.Constraint("Coincident", 13, 2, 14, 1),
    Sketcher.Constraint("Coincident", 14, 2, 15, 1),
    Sketcher.Constraint("Coincident", 15, 2, 12, 1),
    Sketcher.Constraint("Symmetric", 6, 2, 8, 2, -2),
    Sketcher.Constraint("Symmetric", 5, 2, 9, 2, -2),
    Sketcher.Constraint("Symmetric", 4, 2, 10, 2, -2),
    Sketcher.Constraint("Symmetric", 7, 2, 11, 2, -2),
    Sketcher.Constraint("Symmetric", 2, 2, 12, 2, -2),
    Sketcher.Constraint("Symmetric", 1, 2, 13, 2, -2),
    Sketcher.Constraint("Symmetric", 0, 2, 14, 2, -2),
    Sketcher.Constraint("Symmetric", 3, 2, 15, 2, -2),
    Sketcher.Constraint("Perpendicular", 0, 1),
    Sketcher.Constraint("Perpendicular", 1, 2),
    Sketcher.Constraint("Perpendicular", 2, 3),
    Sketcher.Constraint("Parallel", 3, 4),
    Sketcher.Constraint("Perpendicular", 4, 5),
    Sketcher.Constraint("Perpendicular", 5, 6),
    Sketcher.Constraint("Perpendicular", 6, 7),
    Sketcher.Constraint("Equal", 3, 4),
    Sketcher.Constraint("Equal", 2, 5),
    Sketcher.Constraint("Angle", 0, Q("-165 deg")),
    Sketcher.Constraint("Distance", 1, 1.0),
    Sketcher.Constraint("Distance", 0, 2.2),
    Sketcher.Constraint("DistanceY", -1, 1, 4, 2, 16.367499),
    Sketcher.Constraint("DistanceX", 8, 2, 4, 2, 32.851498),
    Sketcher.Constraint("DistanceY", -1, 1, 1, 2, 18.438052),
    Sketcher.Constraint("DistanceX", 5, 2, 1, 2, 5.60237),
])
sketch9.setExpression("Constraints[34]", "Params.sketch9_length")
sketch9.setExpression("Constraints[35]", "Params.sketch9_length2")
pocket6 = body.newObject("PartDesign::Pocket", "Pocket005")
pocket6.Profile = sketch9
pocket6.setExpression("Length", "Params.pocket6_length")

doc.recompute()
